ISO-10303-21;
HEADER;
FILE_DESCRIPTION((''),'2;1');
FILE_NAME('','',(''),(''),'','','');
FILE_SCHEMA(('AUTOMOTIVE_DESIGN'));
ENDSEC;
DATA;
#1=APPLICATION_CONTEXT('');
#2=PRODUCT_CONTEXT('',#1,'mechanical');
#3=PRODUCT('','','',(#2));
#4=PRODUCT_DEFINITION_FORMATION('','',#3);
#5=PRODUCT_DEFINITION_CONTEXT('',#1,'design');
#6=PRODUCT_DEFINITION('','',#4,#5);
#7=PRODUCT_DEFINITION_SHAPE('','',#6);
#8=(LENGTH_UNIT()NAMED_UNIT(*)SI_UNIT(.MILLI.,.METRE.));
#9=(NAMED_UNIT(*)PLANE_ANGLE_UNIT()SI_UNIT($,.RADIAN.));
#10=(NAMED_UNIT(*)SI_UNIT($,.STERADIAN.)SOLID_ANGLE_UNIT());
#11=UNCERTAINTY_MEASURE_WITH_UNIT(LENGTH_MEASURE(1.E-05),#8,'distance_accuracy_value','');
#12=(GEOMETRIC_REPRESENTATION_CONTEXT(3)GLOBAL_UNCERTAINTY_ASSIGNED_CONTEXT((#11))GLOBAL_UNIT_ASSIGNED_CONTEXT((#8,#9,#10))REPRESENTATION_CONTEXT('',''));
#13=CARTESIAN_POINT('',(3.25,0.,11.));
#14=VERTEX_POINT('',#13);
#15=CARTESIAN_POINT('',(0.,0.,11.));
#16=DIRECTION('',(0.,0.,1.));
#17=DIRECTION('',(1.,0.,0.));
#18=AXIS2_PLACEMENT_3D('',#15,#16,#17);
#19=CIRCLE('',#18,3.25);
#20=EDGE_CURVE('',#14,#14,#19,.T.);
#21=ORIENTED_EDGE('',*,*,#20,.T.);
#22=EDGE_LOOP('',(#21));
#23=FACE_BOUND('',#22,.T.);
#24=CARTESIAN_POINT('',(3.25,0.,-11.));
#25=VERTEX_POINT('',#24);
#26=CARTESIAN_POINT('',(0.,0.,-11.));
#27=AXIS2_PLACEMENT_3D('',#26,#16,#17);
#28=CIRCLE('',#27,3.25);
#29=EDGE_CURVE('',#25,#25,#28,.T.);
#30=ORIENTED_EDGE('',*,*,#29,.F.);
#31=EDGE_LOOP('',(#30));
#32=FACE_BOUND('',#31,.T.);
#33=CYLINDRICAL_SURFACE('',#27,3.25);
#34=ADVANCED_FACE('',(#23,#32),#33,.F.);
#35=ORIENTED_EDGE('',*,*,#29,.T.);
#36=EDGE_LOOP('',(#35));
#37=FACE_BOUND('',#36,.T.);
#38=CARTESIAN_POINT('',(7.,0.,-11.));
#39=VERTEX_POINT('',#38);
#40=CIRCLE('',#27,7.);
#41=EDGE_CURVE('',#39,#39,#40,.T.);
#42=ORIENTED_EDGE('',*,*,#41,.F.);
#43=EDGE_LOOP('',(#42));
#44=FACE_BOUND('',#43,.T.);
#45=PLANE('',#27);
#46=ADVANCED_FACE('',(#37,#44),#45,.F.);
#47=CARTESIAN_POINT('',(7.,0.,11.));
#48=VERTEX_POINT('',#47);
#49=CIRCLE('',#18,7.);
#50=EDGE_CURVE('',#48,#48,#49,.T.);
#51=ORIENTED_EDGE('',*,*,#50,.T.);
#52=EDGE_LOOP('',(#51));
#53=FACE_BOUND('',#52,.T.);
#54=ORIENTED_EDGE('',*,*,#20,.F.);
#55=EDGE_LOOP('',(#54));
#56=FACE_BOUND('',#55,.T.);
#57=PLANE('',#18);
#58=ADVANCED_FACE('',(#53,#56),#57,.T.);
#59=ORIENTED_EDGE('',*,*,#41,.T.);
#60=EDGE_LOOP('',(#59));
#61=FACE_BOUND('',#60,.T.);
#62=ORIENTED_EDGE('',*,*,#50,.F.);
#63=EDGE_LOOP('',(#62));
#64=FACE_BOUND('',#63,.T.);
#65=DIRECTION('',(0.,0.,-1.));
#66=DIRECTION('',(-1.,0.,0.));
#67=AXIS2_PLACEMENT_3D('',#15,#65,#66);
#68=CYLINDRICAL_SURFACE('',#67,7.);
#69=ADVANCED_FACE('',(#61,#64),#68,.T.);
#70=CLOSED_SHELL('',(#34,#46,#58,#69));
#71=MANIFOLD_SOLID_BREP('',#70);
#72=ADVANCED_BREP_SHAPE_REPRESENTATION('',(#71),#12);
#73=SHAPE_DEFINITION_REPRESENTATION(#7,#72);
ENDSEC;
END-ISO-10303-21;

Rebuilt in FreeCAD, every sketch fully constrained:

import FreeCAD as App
import Part
import Sketcher
from FreeCAD import Vector

doc = App.newDocument("Part")
body = doc.addObject("PartDesign::Body", "Body")

sketch1 = doc.addObject("Sketcher::SketchObject", "Sketch")
body.addObject(sketch1)
sketch1.AttachmentSupport = (doc.XY_Plane, [""])
sketch1.MapMode = "FlatFace"
sketch1.addGeometry(Part.Circle(Vector(0, 0, 0), Vector(0, 0, 1), 7), False)
sketch1.addConstraint(Sketcher.Constraint("Coincident", 0, 3, -1, 1))
sketch1.addConstraint(Sketcher.Constraint("Diameter", 0, 14.0))
pad1 = doc.addObject("PartDesign::Pad", "Pad")
body.addObject(pad1)
pad1.Profile = sketch1
pad1.Length = 22
pad1.Midplane = True

sketch2 = doc.addObject("Sketcher::SketchObject", "Sketch001")
body.addObject(sketch2)
sketch2.AttachmentSupport = (doc.XY_Plane, [""])
sketch2.MapMode = "FlatFace"
sketch2.AttachmentOffset = App.Placement(Vector(0, 0, 11), App.Rotation())
sketch2.addGeometry(Part.Circle(Vector(0, 0, 0), Vector(0, 0, 1), 3.2), False)
sketch2.addConstraint(Sketcher.Constraint("Coincident", 0, 3, -1, 1))
sketch2.addConstraint(Sketcher.Constraint("Diameter", 0, 6.5))
pocket1 = doc.addObject("PartDesign::Pocket", "Pocket")
body.addObject(pocket1)
pocket1.Profile = sketch2
pocket1.Type = "ThroughAll"
pocket1.Midplane = True

doc.recompute()
